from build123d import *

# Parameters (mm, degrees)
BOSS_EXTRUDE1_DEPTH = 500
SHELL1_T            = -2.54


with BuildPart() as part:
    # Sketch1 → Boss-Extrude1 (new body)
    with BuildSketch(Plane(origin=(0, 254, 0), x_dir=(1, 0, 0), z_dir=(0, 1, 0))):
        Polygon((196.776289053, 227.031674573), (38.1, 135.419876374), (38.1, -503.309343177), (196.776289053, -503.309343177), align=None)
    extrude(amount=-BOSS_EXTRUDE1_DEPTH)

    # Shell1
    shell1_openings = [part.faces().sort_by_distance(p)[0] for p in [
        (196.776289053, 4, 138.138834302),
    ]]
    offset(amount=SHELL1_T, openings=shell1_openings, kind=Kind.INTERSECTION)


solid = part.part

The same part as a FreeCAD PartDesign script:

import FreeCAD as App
import Part
import Sketcher
from FreeCAD import Vector
Q = App.Units.Quantity


def faces_at(feature, points):
    """Names of the faces that lie closest to the given points."""
    faces = feature.Shape.Faces
    near = lambda p: min(range(len(faces)), key=lambda i: faces[i].distToShape(Part.Vertex(*p))[0])
    return sorted({f"Face{near(p) + 1}" for p in points})


def add_polygon(sketch, points):
    """Adds a closed chain of lines whose ends are joined by coincident constraints."""
    first, n = sketch.GeometryCount, len(points)
    for a, b in zip(points, points[1:] + points[:1]):
        sketch.addGeometry(Part.LineSegment(App.Vector(*a, 0), App.Vector(*b, 0)), False)
    for i in range(n):
        sketch.addConstraint(Sketcher.Constraint("Coincident", first + i, 2, first + (i + 1) % n, 1))

doc = App.newDocument("Part")
body = doc.addObject("PartDesign::Body", "Body")

sketch1 = body.newObject("Sketcher::SketchObject", "Sketch")
sketch1.AttachmentSupport = (doc.getObject("XZ_Plane"), [""])
sketch1.MapMode = "FlatFace"
sketch1.AttachmentOffset = App.Placement(Vector(0, 0, -254), App.Rotation())
add_polygon(sketch1, [(196.776289, -227.031675), (38.1, -135.419876), (38.1, 503.309343), (196.776289, 503.309343)])
sketch1.addConstraint(Sketcher.Constraint("Vertical", 1))
sketch1.addConstraint(Sketcher.Constraint("Horizontal", 2))
sketch1.addConstraint(Sketcher.Constraint("Vertical", 3))
sketch1.addConstraint(Sketcher.Constraint("Angle", 0, Q("150 deg")))
sketch1.addConstraint(Sketcher.Constraint("DistanceX", -1, 1, 0, 2, 38.1))
sketch1.addConstraint(Sketcher.Constraint("DistanceX", 2, 1, 2, 2, 158.676289))
sketch1.addConstraint(Sketcher.Constraint("DistanceY", 1, 1, 1, 2, 638.72922))
sketch1.addConstraint(Sketcher.Constraint("DistanceY", 0, 2, -1, 1, 135.419876))
pad1 = body.newObject("PartDesign::Pad", "Pad")
pad1.Profile = sketch1
pad1.Length = 500
doc.recompute()

thickness = body.newObject("PartDesign::Thickness", "Thickness")
thickness.Base = (pad1, faces_at(pad1, [(196.776, 4, 138.139)]))
thickness.Value = 2.54
thickness.Reversed = True
thickness.Join = "Intersection"

doc.recompute()
